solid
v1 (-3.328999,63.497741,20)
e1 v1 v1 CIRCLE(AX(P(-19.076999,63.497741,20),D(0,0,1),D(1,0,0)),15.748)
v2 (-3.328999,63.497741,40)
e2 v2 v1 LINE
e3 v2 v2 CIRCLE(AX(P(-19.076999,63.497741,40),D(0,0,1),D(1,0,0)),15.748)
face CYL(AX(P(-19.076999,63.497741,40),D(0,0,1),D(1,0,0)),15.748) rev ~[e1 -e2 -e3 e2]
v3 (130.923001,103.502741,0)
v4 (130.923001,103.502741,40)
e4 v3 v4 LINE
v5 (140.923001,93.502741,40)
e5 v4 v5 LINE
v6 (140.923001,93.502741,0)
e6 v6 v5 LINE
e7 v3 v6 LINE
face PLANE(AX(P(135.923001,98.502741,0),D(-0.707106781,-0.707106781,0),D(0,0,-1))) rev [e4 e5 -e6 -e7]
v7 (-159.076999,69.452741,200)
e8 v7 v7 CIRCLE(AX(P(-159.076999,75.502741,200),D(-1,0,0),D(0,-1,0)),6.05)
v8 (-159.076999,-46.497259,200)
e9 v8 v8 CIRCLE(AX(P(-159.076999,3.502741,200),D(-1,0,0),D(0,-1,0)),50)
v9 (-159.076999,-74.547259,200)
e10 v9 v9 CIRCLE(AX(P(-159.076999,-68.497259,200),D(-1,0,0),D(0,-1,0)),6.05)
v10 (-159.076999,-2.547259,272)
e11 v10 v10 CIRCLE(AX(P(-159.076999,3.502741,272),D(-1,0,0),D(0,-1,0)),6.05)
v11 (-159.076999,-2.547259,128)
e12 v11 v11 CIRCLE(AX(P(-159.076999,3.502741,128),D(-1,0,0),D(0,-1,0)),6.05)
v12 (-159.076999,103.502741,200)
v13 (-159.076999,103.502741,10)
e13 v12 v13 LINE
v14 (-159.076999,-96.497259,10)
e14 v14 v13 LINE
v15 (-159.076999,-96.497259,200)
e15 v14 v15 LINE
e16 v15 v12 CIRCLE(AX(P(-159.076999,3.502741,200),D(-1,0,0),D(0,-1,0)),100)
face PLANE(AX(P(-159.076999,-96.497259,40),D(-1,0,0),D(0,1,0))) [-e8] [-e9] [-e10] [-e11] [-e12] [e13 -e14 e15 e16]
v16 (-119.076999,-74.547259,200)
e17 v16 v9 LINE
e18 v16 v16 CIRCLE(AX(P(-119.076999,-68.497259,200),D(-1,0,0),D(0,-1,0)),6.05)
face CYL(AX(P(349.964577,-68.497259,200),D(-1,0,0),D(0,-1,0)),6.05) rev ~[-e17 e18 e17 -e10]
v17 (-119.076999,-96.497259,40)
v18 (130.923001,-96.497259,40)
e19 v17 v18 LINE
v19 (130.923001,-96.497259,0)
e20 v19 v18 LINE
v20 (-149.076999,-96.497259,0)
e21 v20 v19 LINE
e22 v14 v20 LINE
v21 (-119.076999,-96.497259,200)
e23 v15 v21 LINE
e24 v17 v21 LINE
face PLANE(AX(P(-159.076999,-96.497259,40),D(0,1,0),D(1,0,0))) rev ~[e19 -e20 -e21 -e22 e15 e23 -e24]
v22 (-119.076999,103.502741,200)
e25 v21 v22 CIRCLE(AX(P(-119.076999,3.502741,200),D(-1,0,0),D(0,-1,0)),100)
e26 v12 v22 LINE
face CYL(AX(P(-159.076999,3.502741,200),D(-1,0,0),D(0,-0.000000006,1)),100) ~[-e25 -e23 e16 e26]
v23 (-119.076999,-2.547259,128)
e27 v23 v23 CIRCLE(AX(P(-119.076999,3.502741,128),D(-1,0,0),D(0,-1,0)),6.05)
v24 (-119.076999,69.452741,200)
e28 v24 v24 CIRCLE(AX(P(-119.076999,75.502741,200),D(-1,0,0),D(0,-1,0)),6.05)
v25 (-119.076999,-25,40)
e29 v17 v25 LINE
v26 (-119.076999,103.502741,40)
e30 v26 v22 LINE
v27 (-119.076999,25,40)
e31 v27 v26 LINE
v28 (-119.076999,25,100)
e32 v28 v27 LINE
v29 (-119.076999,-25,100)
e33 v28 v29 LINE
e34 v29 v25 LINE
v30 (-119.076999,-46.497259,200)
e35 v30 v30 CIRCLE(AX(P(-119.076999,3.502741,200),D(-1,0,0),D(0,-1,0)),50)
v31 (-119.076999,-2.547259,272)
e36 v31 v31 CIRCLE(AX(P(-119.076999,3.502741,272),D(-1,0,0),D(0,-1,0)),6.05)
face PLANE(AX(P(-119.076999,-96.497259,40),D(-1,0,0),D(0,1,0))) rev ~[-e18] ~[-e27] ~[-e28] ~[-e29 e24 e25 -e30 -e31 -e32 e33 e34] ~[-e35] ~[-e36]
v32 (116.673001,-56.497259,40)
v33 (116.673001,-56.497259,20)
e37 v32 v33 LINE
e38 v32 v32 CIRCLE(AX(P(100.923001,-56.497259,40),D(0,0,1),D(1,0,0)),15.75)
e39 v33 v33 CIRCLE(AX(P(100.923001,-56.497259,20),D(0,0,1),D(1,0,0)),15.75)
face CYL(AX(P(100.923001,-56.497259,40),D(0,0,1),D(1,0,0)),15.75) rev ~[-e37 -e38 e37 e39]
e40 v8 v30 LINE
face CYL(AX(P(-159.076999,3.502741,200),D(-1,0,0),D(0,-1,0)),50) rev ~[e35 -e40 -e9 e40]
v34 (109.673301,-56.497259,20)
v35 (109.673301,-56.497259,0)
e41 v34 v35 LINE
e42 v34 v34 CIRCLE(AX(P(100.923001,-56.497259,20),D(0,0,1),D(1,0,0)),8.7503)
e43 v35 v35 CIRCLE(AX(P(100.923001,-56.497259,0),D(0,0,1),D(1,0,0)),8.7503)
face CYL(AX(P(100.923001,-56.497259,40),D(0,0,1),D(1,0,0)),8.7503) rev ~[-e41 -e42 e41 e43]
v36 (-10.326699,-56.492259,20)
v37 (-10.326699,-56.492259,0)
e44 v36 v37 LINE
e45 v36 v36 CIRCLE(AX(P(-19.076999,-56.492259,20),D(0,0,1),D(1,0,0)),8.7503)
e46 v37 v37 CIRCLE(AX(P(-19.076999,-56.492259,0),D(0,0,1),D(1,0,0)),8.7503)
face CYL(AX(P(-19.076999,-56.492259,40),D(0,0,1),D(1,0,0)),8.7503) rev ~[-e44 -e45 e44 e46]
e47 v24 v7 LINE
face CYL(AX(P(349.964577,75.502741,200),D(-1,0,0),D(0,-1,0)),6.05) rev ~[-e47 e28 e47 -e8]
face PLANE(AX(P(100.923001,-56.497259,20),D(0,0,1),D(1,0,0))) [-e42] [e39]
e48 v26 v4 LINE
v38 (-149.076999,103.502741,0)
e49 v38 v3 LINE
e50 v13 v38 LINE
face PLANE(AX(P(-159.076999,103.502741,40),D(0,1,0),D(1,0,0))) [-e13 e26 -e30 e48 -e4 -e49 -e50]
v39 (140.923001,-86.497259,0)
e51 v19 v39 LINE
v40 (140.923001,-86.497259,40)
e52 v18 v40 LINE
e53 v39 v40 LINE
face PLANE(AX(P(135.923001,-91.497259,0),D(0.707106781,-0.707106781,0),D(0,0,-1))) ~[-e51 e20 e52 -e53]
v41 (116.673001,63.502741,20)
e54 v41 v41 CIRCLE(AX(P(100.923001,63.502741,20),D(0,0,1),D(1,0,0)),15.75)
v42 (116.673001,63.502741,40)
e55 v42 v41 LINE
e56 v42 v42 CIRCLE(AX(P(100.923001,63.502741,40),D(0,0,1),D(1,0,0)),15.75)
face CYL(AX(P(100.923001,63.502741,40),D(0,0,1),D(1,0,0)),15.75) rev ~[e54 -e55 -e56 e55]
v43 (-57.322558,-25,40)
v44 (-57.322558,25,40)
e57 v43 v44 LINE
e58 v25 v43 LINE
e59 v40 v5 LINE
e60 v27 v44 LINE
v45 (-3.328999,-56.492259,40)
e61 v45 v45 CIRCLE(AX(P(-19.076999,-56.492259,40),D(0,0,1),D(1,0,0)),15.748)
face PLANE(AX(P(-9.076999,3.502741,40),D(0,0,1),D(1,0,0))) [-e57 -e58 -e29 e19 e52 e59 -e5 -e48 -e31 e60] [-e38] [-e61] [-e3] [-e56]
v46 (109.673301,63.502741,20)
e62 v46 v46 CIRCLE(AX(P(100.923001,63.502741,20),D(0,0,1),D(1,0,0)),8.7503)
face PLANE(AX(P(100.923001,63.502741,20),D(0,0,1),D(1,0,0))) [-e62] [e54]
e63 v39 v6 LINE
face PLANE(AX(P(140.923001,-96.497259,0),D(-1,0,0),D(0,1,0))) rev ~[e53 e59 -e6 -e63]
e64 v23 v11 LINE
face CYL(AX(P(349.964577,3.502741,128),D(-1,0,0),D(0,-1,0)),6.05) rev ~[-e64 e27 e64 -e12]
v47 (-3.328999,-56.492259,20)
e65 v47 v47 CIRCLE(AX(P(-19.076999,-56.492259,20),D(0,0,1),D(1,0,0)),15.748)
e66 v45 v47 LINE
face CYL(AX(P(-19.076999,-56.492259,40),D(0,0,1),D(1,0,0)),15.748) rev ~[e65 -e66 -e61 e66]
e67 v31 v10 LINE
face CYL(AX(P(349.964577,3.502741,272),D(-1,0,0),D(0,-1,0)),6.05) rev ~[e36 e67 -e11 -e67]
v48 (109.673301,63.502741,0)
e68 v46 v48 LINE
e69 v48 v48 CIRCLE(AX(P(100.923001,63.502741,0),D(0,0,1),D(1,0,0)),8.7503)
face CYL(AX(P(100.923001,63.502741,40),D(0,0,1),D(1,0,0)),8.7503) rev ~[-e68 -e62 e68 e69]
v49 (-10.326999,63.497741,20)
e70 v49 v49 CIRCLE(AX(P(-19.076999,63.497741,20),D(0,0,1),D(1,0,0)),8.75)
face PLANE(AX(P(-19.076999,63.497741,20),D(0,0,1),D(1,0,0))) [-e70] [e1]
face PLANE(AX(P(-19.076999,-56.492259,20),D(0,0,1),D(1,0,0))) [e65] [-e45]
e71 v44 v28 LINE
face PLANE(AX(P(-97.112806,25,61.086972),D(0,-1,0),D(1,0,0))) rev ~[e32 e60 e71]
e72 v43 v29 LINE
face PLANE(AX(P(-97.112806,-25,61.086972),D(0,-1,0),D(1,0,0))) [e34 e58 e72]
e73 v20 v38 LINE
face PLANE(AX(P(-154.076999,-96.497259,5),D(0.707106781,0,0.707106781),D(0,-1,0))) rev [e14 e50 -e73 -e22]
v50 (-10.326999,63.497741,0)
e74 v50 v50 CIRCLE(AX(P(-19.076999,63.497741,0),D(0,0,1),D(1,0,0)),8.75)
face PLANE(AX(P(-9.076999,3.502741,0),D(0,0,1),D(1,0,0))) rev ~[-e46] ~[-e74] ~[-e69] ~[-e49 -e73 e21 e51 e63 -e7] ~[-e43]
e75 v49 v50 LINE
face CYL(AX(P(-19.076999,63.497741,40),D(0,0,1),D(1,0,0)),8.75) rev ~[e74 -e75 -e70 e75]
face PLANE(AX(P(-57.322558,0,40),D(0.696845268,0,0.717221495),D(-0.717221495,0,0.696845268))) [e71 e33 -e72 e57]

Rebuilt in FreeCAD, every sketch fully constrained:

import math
import FreeCAD as App
import Part
import Sketcher
from FreeCAD import Vector


def edges_at(feature, points):
    """Names of the edges that pass closest to the given points."""
    edges = feature.Shape.Edges
    near = lambda p: min(range(len(edges)), key=lambda i: edges[i].distToShape(Part.Vertex(*p))[0])
    return sorted({f"Edge{near(p) + 1}" for p in points})

doc = App.newDocument("Part")
body = doc.addObject("PartDesign::Body", "Body")

# Sketch on XY plane
sketch1 = body.newObject("Sketcher::SketchObject", "Sketch")
sketch1.AttachmentSupport = (doc.getObject("XY_Plane"), [""])
sketch1.MapMode = "FlatFace"
sketch1.addGeometry([
    Part.LineSegment(Vector(-159, 104, 0), Vector(-159, -96, 0)),
    Part.LineSegment(Vector(-159, -96, 0), Vector(141, -96, 0)),
    Part.LineSegment(Vector(141, -96, 0), Vector(141, 104, 0)),
    Part.LineSegment(Vector(141, 104, 0), Vector(-159, 104, 0)),
], False)
sketch1.addConstraint([
    Sketcher.Constraint("Coincident", 0, 2, 1, 1),
    Sketcher.Constraint("Coincident", 1, 2, 2, 1),
    Sketcher.Constraint("Coincident", 2, 2, 3, 1),
    Sketcher.Constraint("Coincident", 3, 2, 0, 1),
    Sketcher.Constraint("Vertical", 0),
    Sketcher.Constraint("Horizontal", 1),
    Sketcher.Constraint("Vertical", 2),
    Sketcher.Constraint("Horizontal", 3),
    Sketcher.Constraint("DistanceX", 1, 1, 1, 2, 300.0),
    Sketcher.Constraint("DistanceY", 0, 2, 0, 1, 200.0),
    Sketcher.Constraint("DistanceX", 0, 2, -1, 1, 159.076999),
    Sketcher.Constraint("DistanceY", 0, 2, -1, 1, 96.497259),
])
pad1 = body.newObject("PartDesign::Pad", "Pad")
pad1.Profile = sketch1
pad1.Length = 40

# Sketch on XY plane
sketch2 = body.newObject("Sketcher::SketchObject", "Sketch001")
sketch2.AttachmentSupport = (doc.getObject("XY_Plane"), [""])
sketch2.MapMode = "FlatFace"
sketch2.AttachmentOffset = App.Placement(Vector(0, 0, 40), App.Rotation())
sketch2.addGeometry([
    Part.Circle(Vector(101, 64, 0), Vector(0, 0, 1), 16),
    Part.Circle(Vector(101, -56, 0), Vector(0, 0, 1), 16),
    Part.Circle(Vector(-19, 63, 0), Vector(0, 0, 1), 16),
    Part.Circle(Vector(-19, -56, 0), Vector(0, 0, 1), 16),
], False)
sketch2.addConstraint([
    Sketcher.Constraint("Equal", 0, 1),
    Sketcher.Constraint("Equal", 2, 3),
    Sketcher.Constraint("Vertical", 0, 3, 1, 3),
    Sketcher.Constraint("Vertical", 2, 3, 3, 3),
    Sketcher.Constraint("Diameter", 0, 31.5),
    Sketcher.Constraint("Diameter", 2, 31.496),
    Sketcher.Constraint("DistanceY", 1, 3, 0, 3, 120.0),
    Sketcher.Constraint("DistanceX", 2, 3, 0, 3, 120.0),
    Sketcher.Constraint("DistanceY", 3, 3, 2, 3, 119.99),
    Sketcher.Constraint("DistanceX", -1, 1, 0, 3, 100.923001),
    Sketcher.Constraint("DistanceY", 2, 3, 0, 3, 0.005),
    Sketcher.Constraint("DistanceY", -1, 1, 0, 3, 63.502741),
])
pocket1 = body.newObject("PartDesign::Pocket", "Pocket")
pocket1.Profile = sketch2
pocket1.Length = 20

# Sketch on XY plane
sketch3 = body.newObject("Sketcher::SketchObject", "Sketch002")
sketch3.AttachmentSupport = (doc.getObject("XY_Plane"), [""])
sketch3.MapMode = "FlatFace"
sketch3.AttachmentOffset = App.Placement(Vector(0, 0, 40), App.Rotation())
sketch3.addGeometry([
    Part.Circle(Vector(-19, 63, 0), Vector(0, 0, 1), 9),
    Part.Circle(Vector(101, 64, 0), Vector(0, 0, 1), 9),
    Part.Circle(Vector(-19, -56, 0), Vector(0, 0, 1), 9),
    Part.Circle(Vector(101, -56, 0), Vector(0, 0, 1), 9),
], False)
sketch3.addConstraint([
    Sketcher.Constraint("Equal", 1, 2),
    Sketcher.Constraint("Equal", 2, 3),
    Sketcher.Constraint("Vertical", 0, 3, 2, 3),
    Sketcher.Constraint("Vertical", 1, 3, 3, 3),
    Sketcher.Constraint("Diameter", 0, 17.5),
    Sketcher.Constraint("DistanceX", 0, 3, 1, 3, 120.0),
    Sketcher.Constraint("DistanceY", 3, 3, 1, 3, 120.0),
    Sketcher.Constraint("Diameter", 1, 17.5006),
    Sketcher.Constraint("DistanceY", 2, 3, 0, 3, 119.99),
    Sketcher.Constraint("DistanceX", 0, 3, -1, 1, 19.076999),
    Sketcher.Constraint("DistanceY", 0, 3, 1, 3, 0.005),
    Sketcher.Constraint("DistanceY", -1, 1, 0, 3, 63.497741),
])
pocket2 = body.newObject("PartDesign::Pocket", "Pocket001")
pocket2.Profile = sketch3
pocket2.Type = "ThroughAll"

# Sketch on XY plane
sketch4 = body.newObject("Sketcher::SketchObject", "Sketch003")
sketch4.AttachmentSupport = (doc.getObject("XY_Plane"), [""])
sketch4.MapMode = "FlatFace"
sketch4.AttachmentOffset = App.Placement(Vector(0, 0, 40), App.Rotation())
sketch4.addGeometry([
    Part.LineSegment(Vector(-159, 104, 0), Vector(-159, -96, 0)),
    Part.LineSegment(Vector(-159, -96, 0), Vector(-119, -96, 0)),
    Part.LineSegment(Vector(-119, -96, 0), Vector(-119, 104, 0)),
    Part.LineSegment(Vector(-119, 104, 0), Vector(-159, 104, 0)),
], False)
sketch4.addConstraint([
    Sketcher.Constraint("Coincident", 0, 2, 1, 1),
    Sketcher.Constraint("Coincident", 1, 2, 2, 1),
    Sketcher.Constraint("Coincident", 2, 2, 3, 1),
    Sketcher.Constraint("Coincident", 3, 2, 0, 1),
    Sketcher.Constraint("Vertical", 0),
    Sketcher.Constraint("Horizontal", 1),
    Sketcher.Constraint("Vertical", 2),
    Sketcher.Constraint("Horizontal", 3),
    Sketcher.Constraint("DistanceX", 1, 1, 1, 2, 40.0),
    Sketcher.Constraint("DistanceY", 0, 2, 0, 1, 200.0),
    Sketcher.Constraint("DistanceX", 0, 2, -1, 1, 159.076999),
    Sketcher.Constraint("DistanceY", 0, 2, -1, 1, 96.497259),
])
pad2 = body.newObject("PartDesign::Pad", "Pad001")
pad2.Profile = sketch4
pad2.Length = 260

# Sketch on YZ plane
sketch5 = body.newObject("Sketcher::SketchObject", "Sketch004")
sketch5.AttachmentSupport = (doc.getObject("YZ_Plane"), [""])
sketch5.MapMode = "FlatFace"
sketch5.AttachmentOffset = App.Placement(Vector(0, 0, -159.076999), App.Rotation())
sketch5.addGeometry([
    Part.Circle(Vector(4, 200, 0), Vector(0, 0, 1), 50),  # 0
    Part.ArcOfCircle(Part.Circle(Vector(4, 200, 0), Vector(0, 0, 1), 100), math.radians(90), math.radians(180)),  # 1
    Part.LineSegment(Vector(-96, 200, 0), Vector(-96, 300, 0)),  # 2
    Part.LineSegment(Vector(-96, 300, 0), Vector(4, 300, 0)),  # 3
    Part.ArcOfCircle(Part.Circle(Vector(4, 200, 0), Vector(0, 0, 1), 100), math.radians(0), math.radians(90)),  # 4
    Part.LineSegment(Vector(4, 300, 0), Vector(104, 300, 0)),  # 5
    Part.LineSegment(Vector(104, 300, 0), Vector(104, 200, 0)),  # 6
], False)
sketch5.addConstraint([
    Sketcher.Constraint("Tangent", 1, 2, 2, 1),
    Sketcher.Constraint("Coincident", 2, 2, 3, 1),
    Sketcher.Constraint("Tangent", 3, 2, 1, 1),
    Sketcher.Constraint("Tangent", 4, 2, 5, 1),
    Sketcher.Constraint("Coincident", 5, 2, 6, 1),
    Sketcher.Constraint("Tangent", 6, 2, 4, 1),
    Sketcher.Constraint("Vertical", 2),
    Sketcher.Constraint("Horizontal", 3),
    Sketcher.Constraint("Horizontal", 5),
    Sketcher.Constraint("Vertical", 6),
    Sketcher.Constraint("Coincident", 1, 3, 0, 3),
    Sketcher.Constraint("Coincident", 4, 3, 0, 3),
    Sketcher.Constraint("Equal", 1, 4),
    Sketcher.Constraint("Diameter", 0, 100.0),
    Sketcher.Constraint("Radius", 1, 100.0),
    Sketcher.Constraint("DistanceY", -1, 1, 0, 3, 200.0),
    Sketcher.Constraint("DistanceX", -1, 1, 0, 3, 3.502741),
])
pocket3 = body.newObject("PartDesign::Pocket", "Pocket002")
pocket3.Profile = sketch5
pocket3.Type = "ThroughAll"
pocket3.Reversed = True

# Sketch on YZ plane
sketch6 = body.newObject("Sketcher::SketchObject", "Sketch005")
sketch6.AttachmentSupport = (doc.getObject("YZ_Plane"), [""])
sketch6.MapMode = "FlatFace"
sketch6.AttachmentOffset = App.Placement(Vector(0, 0, -119.076999), App.Rotation())
sketch6.addGeometry([
    Part.Circle(Vector(4, 272, 0), Vector(0, 0, 1), 6),
    Part.Circle(Vector(76, 200, 0), Vector(0, 0, 1), 6),
    Part.Circle(Vector(4, 128, 0), Vector(0, 0, 1), 6),
    Part.Circle(Vector(-68, 200, 0), Vector(0, 0, 1), 6),
], False)
sketch6.addConstraint([
    Sketcher.Constraint("Equal", 0, 1),
    Sketcher.Constraint("Equal", 1, 2),
    Sketcher.Constraint("Equal", 2, 3),
    Sketcher.Constraint("Horizontal", 1, 3, 3, 3),
    Sketcher.Constraint("Vertical", 0, 3, 2, 3),
    Sketcher.Constraint("Diameter", 0, 12.1),
    Sketcher.Constraint("DistanceY", -1, 1, 0, 3, 272.0),
    Sketcher.Constraint("DistanceY", -1, 1, 1, 3, 200.0),
    Sketcher.Constraint("DistanceY", -1, 1, 2, 3, 128.0),
    Sketcher.Constraint("DistanceX", 0, 3, 1, 3, 72.0),
    Sketcher.Constraint("DistanceX", 3, 3, 0, 3, 72.0),
    Sketcher.Constraint("DistanceX", -1, 1, 0, 3, 3.502741),
])
doc.recompute()
hole = body.newObject("PartDesign::Hole", "Hole")
hole.Profile = sketch6
hole.ThreadType = "None"
hole.Diameter = 12.1
hole.DepthType = "ThroughAll"
doc.recompute()

chamfer = body.newObject("PartDesign::Chamfer", "Chamfer")
chamfer.Base = (hole, edges_at(hole, [(140.923, -96.497, 20), (140.923, 103.503, 20), (-159.077, 3.503, 0)]))
chamfer.Size = 10

# Sketch on XZ plane
sketch7 = body.newObject("Sketcher::SketchObject", "Sketch006")
sketch7.AttachmentSupport = (doc.getObject("XZ_Plane"), [""])
sketch7.MapMode = "FlatFace"
sketch7.addGeometry([
    Part.LineSegment(Vector(-119, 100, 0), Vector(-119, 40, 0)),
    Part.LineSegment(Vector(-119, 40, 0), Vector(-57, 40, 0)),
    Part.LineSegment(Vector(-57, 40, 0), Vector(-119, 100, 0)),
], False)
sketch7.addConstraint([
    Sketcher.Constraint("Coincident", 0, 2, 1, 1),
    Sketcher.Constraint("Coincident", 1, 2, 2, 1),
    Sketcher.Constraint("Coincident", 2, 2, 0, 1),
    Sketcher.Constraint("Vertical", 0),
    Sketcher.Constraint("Horizontal", 1),
    Sketcher.Constraint("DistanceY", 0, 2, 0, 1, 60.0),
    Sketcher.Constraint("DistanceY", -1, 1, 0, 2, 40.0),
    Sketcher.Constraint("DistanceX", 0, 2, -1, 1, 119.076999),
    Sketcher.Constraint("DistanceX", 1, 1, 1, 2, 61.754441),
])
pad3 = body.newObject("PartDesign::Pad", "Pad002")
pad3.Profile = sketch7
pad3.Type = "TwoLengths"
pad3.Length = 25
pad3.Length2 = 25

doc.recompute()
